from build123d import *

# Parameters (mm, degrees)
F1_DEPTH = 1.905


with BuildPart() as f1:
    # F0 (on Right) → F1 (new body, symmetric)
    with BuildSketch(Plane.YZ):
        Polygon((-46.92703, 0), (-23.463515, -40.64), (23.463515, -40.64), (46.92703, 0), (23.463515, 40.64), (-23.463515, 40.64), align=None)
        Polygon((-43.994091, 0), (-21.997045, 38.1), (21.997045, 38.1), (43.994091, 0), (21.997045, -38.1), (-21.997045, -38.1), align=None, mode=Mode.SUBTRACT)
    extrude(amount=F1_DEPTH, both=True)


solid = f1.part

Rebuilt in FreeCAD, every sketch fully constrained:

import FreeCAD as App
import Part
import Sketcher
from FreeCAD import Vector
Q = App.Units.Quantity


def add_polygon(sketch, points):
    """Adds a closed chain of lines whose ends are joined by coincident constraints."""
    first, n = sketch.GeometryCount, len(points)
    for a, b in zip(points, points[1:] + points[:1]):
        sketch.addGeometry(Part.LineSegment(App.Vector(*a, 0), App.Vector(*b, 0)), False)
    for i in range(n):
        sketch.addConstraint(Sketcher.Constraint("Coincident", first + i, 2, first + (i + 1) % n, 1))

doc = App.newDocument("Part")
params = doc.addObject("Spreadsheet::Sheet", "Params")
for row, (alias, value) in enumerate([
    ("pad1_length", "0.15 in"),
], start=1):
    params.set(f"A{row}", alias)
    params.set(f"B{row}", "=" + value)
    params.setAlias(f"B{row}", alias)

body = doc.addObject("PartDesign::Body", "Body")

sketch1 = body.newObject("Sketcher::SketchObject", "Sketch")
sketch1.AttachmentSupport = (doc.getObject("YZ_Plane"), [""])
sketch1.MapMode = "FlatFace"
add_polygon(sketch1, [(-46.92703, 0), (-23.463515, -40.64), (23.463515, -40.64), (46.92703, 0), (23.463515, 40.64), (-23.463515, 40.64)])
add_polygon(sketch1, [(-21.997045, -38.1), (-43.994091, 0), (-21.997045, 38.1), (21.997045, 38.1), (43.994091, 0), (21.997045, -38.1)])
sketch1.addConstraint([
    Sketcher.Constraint("Horizontal", 1),
    Sketcher.Constraint("Horizontal", 4),
    Sketcher.Constraint("Horizontal", 8),
    Sketcher.Constraint("Horizontal", 11),
    Sketcher.Constraint("Symmetric", 0, 2, 3, 2, -1, 1),
    Sketcher.Constraint("Symmetric", 2, 2, 5, 2, -1, 1),
    Sketcher.Constraint("Symmetric", 6, 2, 9, 2, -1, 1),
    Sketcher.Constraint("Symmetric", 7, 2, 10, 2, -1, 1),
    Sketcher.Constraint("PointOnObject", 2, 2, -1),
    Sketcher.Constraint("PointOnObject", 6, 2, -1),
    Sketcher.Constraint("Parallel", 2, 5),
    Sketcher.Constraint("Parallel", 3, 6),
    Sketcher.Constraint("Parallel", 5, 7),
    Sketcher.Constraint("Parallel", 6, 9),
    Sketcher.Constraint("Vertical", 1, 2, 3, 2),
    Sketcher.Constraint("Angle", 0, Q("-60 deg")),
    Sketcher.Constraint("DistanceY", 10, 2, 8, 2, Q("3 in")),
    Sketcher.Constraint("DistanceY", 0, 2, -1, 1, Q("1.6 in")),
    Sketcher.Constraint("DistanceX", 1, 1, 1, 2, 46.92703),
    Sketcher.Constraint("DistanceX", 8, 1, 8, 2, 43.99409),
])
pad1 = body.newObject("PartDesign::Pad", "Pad")
pad1.Profile = sketch1
pad1.setExpression("Length", "Params.pad1_length")
pad1.Midplane = True

doc.recompute()
